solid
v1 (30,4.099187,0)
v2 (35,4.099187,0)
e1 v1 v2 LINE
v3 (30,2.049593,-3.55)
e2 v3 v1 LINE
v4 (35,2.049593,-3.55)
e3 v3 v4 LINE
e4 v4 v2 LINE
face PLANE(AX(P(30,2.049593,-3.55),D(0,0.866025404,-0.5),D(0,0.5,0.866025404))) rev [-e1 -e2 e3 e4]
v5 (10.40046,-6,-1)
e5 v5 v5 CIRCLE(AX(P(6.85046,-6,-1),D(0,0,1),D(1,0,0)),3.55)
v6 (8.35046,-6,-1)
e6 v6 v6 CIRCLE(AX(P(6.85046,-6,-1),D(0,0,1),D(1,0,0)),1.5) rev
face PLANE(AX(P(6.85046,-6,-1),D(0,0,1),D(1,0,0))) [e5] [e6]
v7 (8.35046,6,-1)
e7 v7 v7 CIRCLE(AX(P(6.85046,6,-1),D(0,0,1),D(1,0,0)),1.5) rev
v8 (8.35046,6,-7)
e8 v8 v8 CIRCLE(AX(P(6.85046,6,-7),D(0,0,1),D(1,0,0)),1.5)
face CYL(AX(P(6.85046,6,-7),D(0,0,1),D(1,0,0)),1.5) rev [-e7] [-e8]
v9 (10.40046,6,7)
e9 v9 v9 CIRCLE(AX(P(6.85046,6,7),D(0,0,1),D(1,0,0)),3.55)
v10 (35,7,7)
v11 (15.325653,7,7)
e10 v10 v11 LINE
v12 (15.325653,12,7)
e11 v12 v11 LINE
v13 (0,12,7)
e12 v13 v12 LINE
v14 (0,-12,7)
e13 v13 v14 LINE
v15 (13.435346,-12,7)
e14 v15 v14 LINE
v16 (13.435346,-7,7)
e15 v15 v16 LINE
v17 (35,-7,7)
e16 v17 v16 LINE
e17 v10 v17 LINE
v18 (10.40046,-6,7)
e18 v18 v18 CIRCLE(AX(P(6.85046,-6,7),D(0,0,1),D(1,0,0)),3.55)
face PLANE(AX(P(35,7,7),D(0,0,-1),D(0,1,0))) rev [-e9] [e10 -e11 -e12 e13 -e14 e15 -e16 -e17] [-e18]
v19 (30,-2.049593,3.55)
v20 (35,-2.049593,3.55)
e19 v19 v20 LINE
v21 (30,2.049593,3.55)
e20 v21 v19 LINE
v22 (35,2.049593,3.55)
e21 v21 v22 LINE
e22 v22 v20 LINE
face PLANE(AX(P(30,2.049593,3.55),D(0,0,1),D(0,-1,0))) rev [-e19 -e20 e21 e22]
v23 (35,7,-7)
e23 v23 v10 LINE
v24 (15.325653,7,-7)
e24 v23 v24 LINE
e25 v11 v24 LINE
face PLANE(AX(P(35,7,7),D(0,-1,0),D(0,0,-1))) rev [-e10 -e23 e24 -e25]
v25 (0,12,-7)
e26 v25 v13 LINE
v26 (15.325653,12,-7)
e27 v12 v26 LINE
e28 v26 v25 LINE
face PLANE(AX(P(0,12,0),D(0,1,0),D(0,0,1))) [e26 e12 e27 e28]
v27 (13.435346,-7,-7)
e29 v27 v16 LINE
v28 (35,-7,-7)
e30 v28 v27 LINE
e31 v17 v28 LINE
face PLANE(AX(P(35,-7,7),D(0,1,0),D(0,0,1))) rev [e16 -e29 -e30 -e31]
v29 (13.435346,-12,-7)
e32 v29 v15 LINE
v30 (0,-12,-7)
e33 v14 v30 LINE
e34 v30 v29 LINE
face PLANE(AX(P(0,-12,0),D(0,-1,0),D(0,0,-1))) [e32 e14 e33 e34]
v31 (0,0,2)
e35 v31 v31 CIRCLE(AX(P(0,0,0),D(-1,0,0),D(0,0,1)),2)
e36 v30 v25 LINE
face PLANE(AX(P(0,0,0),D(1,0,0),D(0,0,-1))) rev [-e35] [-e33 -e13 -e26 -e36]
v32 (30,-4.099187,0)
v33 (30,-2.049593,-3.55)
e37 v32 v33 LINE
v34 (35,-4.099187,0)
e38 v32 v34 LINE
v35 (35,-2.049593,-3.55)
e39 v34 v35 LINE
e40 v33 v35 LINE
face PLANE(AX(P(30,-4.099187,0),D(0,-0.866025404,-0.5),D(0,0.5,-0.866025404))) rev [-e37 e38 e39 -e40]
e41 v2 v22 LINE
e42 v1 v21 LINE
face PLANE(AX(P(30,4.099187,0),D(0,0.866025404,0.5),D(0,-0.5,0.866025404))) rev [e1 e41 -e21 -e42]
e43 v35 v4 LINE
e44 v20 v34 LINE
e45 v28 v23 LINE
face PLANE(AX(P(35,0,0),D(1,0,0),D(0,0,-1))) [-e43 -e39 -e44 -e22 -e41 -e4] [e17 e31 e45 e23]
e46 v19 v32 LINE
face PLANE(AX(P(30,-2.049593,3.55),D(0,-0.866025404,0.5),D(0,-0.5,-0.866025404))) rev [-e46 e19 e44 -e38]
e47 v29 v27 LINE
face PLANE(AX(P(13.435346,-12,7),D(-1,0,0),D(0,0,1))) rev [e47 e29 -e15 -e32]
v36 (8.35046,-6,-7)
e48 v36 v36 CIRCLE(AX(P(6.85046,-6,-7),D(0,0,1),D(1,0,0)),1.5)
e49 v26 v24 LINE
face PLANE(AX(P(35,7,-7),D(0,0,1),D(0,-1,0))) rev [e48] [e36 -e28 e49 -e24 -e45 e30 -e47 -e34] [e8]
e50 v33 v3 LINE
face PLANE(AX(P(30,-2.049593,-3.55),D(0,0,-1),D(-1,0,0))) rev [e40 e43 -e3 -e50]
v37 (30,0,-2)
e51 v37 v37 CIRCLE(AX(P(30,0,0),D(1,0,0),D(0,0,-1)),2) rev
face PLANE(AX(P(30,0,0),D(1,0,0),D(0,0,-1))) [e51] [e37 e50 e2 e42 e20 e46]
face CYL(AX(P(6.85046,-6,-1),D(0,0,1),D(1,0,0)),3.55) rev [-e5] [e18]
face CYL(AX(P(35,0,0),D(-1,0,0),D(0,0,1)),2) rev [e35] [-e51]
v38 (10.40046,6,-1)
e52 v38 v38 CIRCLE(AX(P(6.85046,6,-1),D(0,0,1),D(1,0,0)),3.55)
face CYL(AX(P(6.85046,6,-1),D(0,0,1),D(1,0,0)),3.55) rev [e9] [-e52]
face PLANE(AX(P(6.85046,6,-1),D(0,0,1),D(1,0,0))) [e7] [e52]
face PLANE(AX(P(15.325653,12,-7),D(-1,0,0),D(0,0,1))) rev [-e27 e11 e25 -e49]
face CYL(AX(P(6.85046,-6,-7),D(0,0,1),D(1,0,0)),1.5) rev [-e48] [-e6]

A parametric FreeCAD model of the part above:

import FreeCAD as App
import Part
import Sketcher
Q = App.Units.Quantity

doc = App.newDocument("Part")
body = doc.addObject("PartDesign::Body", "Body")

# Sketch on YZ plane
sketch1 = body.newObject("Sketcher::SketchObject", "Sketch")
sketch1.AttachmentSupport = (doc.getObject("YZ_Plane"), [""])
sketch1.MapMode = "FlatFace"
sketch1.addGeometry([
    Part.LineSegment(App.Vector(7, 7, 0), App.Vector(-7, 7, 0)),
    Part.LineSegment(App.Vector(-7, 7, 0), App.Vector(-7, -7, 0)),
    Part.LineSegment(App.Vector(-7, -7, 0), App.Vector(7, -7, 0)),
    Part.LineSegment(App.Vector(7, -7, 0), App.Vector(7, 7, 0)),
], False)
sketch1.addConstraint([
    Sketcher.Constraint("Coincident", 0, 2, 1, 1),
    Sketcher.Constraint("Coincident", 1, 2, 2, 1),
    Sketcher.Constraint("Coincident", 2, 2, 3, 1),
    Sketcher.Constraint("Coincident", 3, 2, 0, 1),
    Sketcher.Constraint("Horizontal", 0),
    Sketcher.Constraint("Vertical", 1),
    Sketcher.Constraint("Horizontal", 2),
    Sketcher.Constraint("Vertical", 3),
    Sketcher.Constraint("Symmetric", 0, 2, 2, 2, -1, 1),
    Sketcher.Constraint("Equal", 2, 1),
    Sketcher.Constraint("DistanceX", 0, 2, 0, 1, 14.0),
])
pad1 = body.newObject("PartDesign::Pad", "Pad")
pad1.Profile = sketch1
pad1.Length = 35

# Sketch on YZ plane
sketch2 = body.newObject("Sketcher::SketchObject", "Sketch001")
sketch2.AttachmentSupport = (doc.getObject("YZ_Plane"), [""])
sketch2.MapMode = "FlatFace"
sketch2.addGeometry(Part.Circle(App.Vector(0, 0, 0), App.Vector(0, 0, 1), 2), False)
sketch2.addConstraint([
    Sketcher.Constraint("Coincident", 0, 3, -1, 1),
    Sketcher.Constraint("Diameter", 0, 4.0),
])
pocket1 = body.newObject("PartDesign::Pocket", "Pocket")
pocket1.Profile = sketch2
pocket1.Type = "ThroughAll"
pocket1.Reversed = True

# Sketch on YZ plane
sketch3 = body.newObject("Sketcher::SketchObject", "Sketch002")
sketch3.AttachmentSupport = (doc.getObject("YZ_Plane"), [""])
sketch3.MapMode = "FlatFace"
sketch3.AttachmentOffset = App.Placement(App.Vector(0, 0, 35), App.Rotation())
sketch3.addGeometry([
    Part.LineSegment(App.Vector(-2, -3.5, 0), App.Vector(2, -3.5, 0)),  # 0
    Part.LineSegment(App.Vector(2, -3.5, 0), App.Vector(4.1, 0, 0)),  # 1
    Part.LineSegment(App.Vector(4.1, 0, 0), App.Vector(2, 3.5, 0)),  # 2
    Part.LineSegment(App.Vector(2, 3.5, 0), App.Vector(-2, 3.5, 0)),  # 3
    Part.LineSegment(App.Vector(-2, 3.5, 0), App.Vector(-4.1, 0, 0)),  # 4
    Part.LineSegment(App.Vector(-4.1, 0, 0), App.Vector(-2, -3.5, 0)),  # 5
], False)
sketch3.addConstraint([
    Sketcher.Constraint("Coincident", 0, 2, 1, 1),
    Sketcher.Constraint("Coincident", 1, 2, 2, 1),
    Sketcher.Constraint("Coincident", 2, 2, 3, 1),
    Sketcher.Constraint("Coincident", 3, 2, 4, 1),
    Sketcher.Constraint("Coincident", 4, 2, 5, 1),
    Sketcher.Constraint("Coincident", 5, 2, 0, 1),
    Sketcher.Constraint("Horizontal", 0),
    Sketcher.Constraint("Horizontal", 3),
    Sketcher.Constraint("Symmetric", 0, 2, 3, 2, -1, 1),
    Sketcher.Constraint("Symmetric", 1, 2, 4, 2, -1, 1),
    Sketcher.Constraint("PointOnObject", 1, 2, -1),
    Sketcher.Constraint("Parallel", 2, 5),
    Sketcher.Constraint("Vertical", 0, 2, 2, 2),
    Sketcher.Constraint("Angle", 1, Q("60 deg")),
    Sketcher.Constraint("DistanceY", 0, 2, 2, 2, 7.1),
    Sketcher.Constraint("DistanceX", 0, 1, 0, 2, 4.099187),
])
pocket2 = body.newObject("PartDesign::Pocket", "Pocket001")
pocket2.Profile = sketch3
pocket2.Length = 5

# Sketch on XZ plane
sketch4 = body.newObject("Sketcher::SketchObject", "Sketch003")
sketch4.AttachmentSupport = (doc.getObject("XZ_Plane"), [""])
sketch4.MapMode = "FlatFace"
sketch4.AttachmentOffset = App.Placement(App.Vector(0, 0, -7), App.Rotation())
sketch4.addGeometry([
    Part.LineSegment(App.Vector(0, -7, 0), App.Vector(0, 7, 0)),
    Part.LineSegment(App.Vector(0, 7, 0), App.Vector(15, 7, 0)),
    Part.LineSegment(App.Vector(15, 7, 0), App.Vector(15, -7, 0)),
    Part.LineSegment(App.Vector(15, -7, 0), App.Vector(0, -7, 0)),
], False)
sketch4.addConstraint([
    Sketcher.Constraint("Coincident", 0, 2, 1, 1),
    Sketcher.Constraint("Coincident", 1, 2, 2, 1),
    Sketcher.Constraint("Coincident", 2, 2, 3, 1),
    Sketcher.Constraint("Coincident", 3, 2, 0, 1),
    Sketcher.Constraint("Vertical", 0),
    Sketcher.Constraint("Horizontal", 1),
    Sketcher.Constraint("Vertical", 2),
    Sketcher.Constraint("Horizontal", 3),
    Sketcher.Constraint("Symmetric", 0, 2, 3, 2, -1, 1),
    Sketcher.Constraint("DistanceY", 0, 1, 0, 2, 14.0),
    Sketcher.Constraint("DistanceX", 1, 1, 1, 2, 15.325653),
])
pad2 = body.newObject("PartDesign::Pad", "Pad001")
pad2.Profile = sketch4
pad2.Length = 5
pad2.Reversed = True

# Sketch on XZ plane
sketch5 = body.newObject("Sketcher::SketchObject", "Sketch004")
sketch5.AttachmentSupport = (doc.getObject("XZ_Plane"), [""])
sketch5.MapMode = "FlatFace"
sketch5.AttachmentOffset = App.Placement(App.Vector(0, 0, 7), App.Rotation())
sketch5.addGeometry([
    Part.LineSegment(App.Vector(0, 7, 0), App.Vector(0, -7, 0)),
    Part.LineSegment(App.Vector(0, -7, 0), App.Vector(13, -7, 0)),
    Part.LineSegment(App.Vector(13, -7, 0), App.Vector(13, 7, 0)),
    Part.LineSegment(App.Vector(13, 7, 0), App.Vector(0, 7, 0)),
], False)
sketch5.addConstraint([
    Sketcher.Constraint("Coincident", 0, 2, 1, 1),
    Sketcher.Constraint("Coincident", 1, 2, 2, 1),
    Sketcher.Constraint("Coincident", 2, 2, 3, 1),
    Sketcher.Constraint("Coincident", 3, 2, 0, 1),
    Sketcher.Constraint("Vertical", 0),
    Sketcher.Constraint("Horizontal", 1),
    Sketcher.Constraint("Vertical", 2),
    Sketcher.Constraint("Horizontal", 3),
    Sketcher.Constraint("Symmetric", 0, 2, 3, 2, -1, 1),
    Sketcher.Constraint("DistanceY", 0, 2, 0, 1, 14.0),
    Sketcher.Constraint("DistanceX", 1, 1, 1, 2, 13.435346),
])
pad3 = body.newObject("PartDesign::Pad", "Pad002")
pad3.Profile = sketch5
pad3.Length = 5

# Sketch on XY plane
sketch6 = body.newObject("Sketcher::SketchObject", "Sketch005")
sketch6.AttachmentSupport = (doc.getObject("XY_Plane"), [""])
sketch6.MapMode = "FlatFace"
sketch6.AttachmentOffset = App.Placement(App.Vector(0, 0, 7), App.Rotation())
sketch6.addGeometry([
    Part.Circle(App.Vector(6.9, 6, 0), App.Vector(0, 0, 1), 1.5),
    Part.Circle(App.Vector(6.9, -6, 0), App.Vector(0, 0, 1), 1.5),
], False)
sketch6.addConstraint([
    Sketcher.Constraint("Equal", 0, 1),
    Sketcher.Constraint("Symmetric", 0, 3, 1, 3, -1),
    Sketcher.Constraint("Diameter", 0, 3.0),
    Sketcher.Constraint("DistanceY", -1, 1, 0, 3, 6.0),
    Sketcher.Constraint("DistanceX", -1, 1, 0, 3, 6.85046),
])
pocket3 = body.newObject("PartDesign::Pocket", "Pocket002")
pocket3.Profile = sketch6
pocket3.Type = "ThroughAll"

# Sketch on XY plane
sketch7 = body.newObject("Sketcher::SketchObject", "Sketch006")
sketch7.AttachmentSupport = (doc.getObject("XY_Plane"), [""])
sketch7.MapMode = "FlatFace"
sketch7.AttachmentOffset = App.Placement(App.Vector(0, 0, 7), App.Rotation())
sketch7.addGeometry([
    Part.Circle(App.Vector(6.9, 6, 0), App.Vector(0, 0, 1), 3.5),
    Part.Circle(App.Vector(6.9, -6, 0), App.Vector(0, 0, 1), 3.5),
], False)
sketch7.addConstraint([
    Sketcher.Constraint("Equal", 0, 1),
    Sketcher.Constraint("Symmetric", 0, 3, 1, 3, -1),
    Sketcher.Constraint("Diameter", 0, 7.1),
    Sketcher.Constraint("DistanceY", -1, 1, 0, 3, 6.0),
    Sketcher.Constraint("DistanceX", -1, 1, 0, 3, 6.85046),
])
pocket4 = body.newObject("PartDesign::Pocket", "Pocket003")
pocket4.Profile = sketch7
pocket4.Length = 8

doc.recompute()
